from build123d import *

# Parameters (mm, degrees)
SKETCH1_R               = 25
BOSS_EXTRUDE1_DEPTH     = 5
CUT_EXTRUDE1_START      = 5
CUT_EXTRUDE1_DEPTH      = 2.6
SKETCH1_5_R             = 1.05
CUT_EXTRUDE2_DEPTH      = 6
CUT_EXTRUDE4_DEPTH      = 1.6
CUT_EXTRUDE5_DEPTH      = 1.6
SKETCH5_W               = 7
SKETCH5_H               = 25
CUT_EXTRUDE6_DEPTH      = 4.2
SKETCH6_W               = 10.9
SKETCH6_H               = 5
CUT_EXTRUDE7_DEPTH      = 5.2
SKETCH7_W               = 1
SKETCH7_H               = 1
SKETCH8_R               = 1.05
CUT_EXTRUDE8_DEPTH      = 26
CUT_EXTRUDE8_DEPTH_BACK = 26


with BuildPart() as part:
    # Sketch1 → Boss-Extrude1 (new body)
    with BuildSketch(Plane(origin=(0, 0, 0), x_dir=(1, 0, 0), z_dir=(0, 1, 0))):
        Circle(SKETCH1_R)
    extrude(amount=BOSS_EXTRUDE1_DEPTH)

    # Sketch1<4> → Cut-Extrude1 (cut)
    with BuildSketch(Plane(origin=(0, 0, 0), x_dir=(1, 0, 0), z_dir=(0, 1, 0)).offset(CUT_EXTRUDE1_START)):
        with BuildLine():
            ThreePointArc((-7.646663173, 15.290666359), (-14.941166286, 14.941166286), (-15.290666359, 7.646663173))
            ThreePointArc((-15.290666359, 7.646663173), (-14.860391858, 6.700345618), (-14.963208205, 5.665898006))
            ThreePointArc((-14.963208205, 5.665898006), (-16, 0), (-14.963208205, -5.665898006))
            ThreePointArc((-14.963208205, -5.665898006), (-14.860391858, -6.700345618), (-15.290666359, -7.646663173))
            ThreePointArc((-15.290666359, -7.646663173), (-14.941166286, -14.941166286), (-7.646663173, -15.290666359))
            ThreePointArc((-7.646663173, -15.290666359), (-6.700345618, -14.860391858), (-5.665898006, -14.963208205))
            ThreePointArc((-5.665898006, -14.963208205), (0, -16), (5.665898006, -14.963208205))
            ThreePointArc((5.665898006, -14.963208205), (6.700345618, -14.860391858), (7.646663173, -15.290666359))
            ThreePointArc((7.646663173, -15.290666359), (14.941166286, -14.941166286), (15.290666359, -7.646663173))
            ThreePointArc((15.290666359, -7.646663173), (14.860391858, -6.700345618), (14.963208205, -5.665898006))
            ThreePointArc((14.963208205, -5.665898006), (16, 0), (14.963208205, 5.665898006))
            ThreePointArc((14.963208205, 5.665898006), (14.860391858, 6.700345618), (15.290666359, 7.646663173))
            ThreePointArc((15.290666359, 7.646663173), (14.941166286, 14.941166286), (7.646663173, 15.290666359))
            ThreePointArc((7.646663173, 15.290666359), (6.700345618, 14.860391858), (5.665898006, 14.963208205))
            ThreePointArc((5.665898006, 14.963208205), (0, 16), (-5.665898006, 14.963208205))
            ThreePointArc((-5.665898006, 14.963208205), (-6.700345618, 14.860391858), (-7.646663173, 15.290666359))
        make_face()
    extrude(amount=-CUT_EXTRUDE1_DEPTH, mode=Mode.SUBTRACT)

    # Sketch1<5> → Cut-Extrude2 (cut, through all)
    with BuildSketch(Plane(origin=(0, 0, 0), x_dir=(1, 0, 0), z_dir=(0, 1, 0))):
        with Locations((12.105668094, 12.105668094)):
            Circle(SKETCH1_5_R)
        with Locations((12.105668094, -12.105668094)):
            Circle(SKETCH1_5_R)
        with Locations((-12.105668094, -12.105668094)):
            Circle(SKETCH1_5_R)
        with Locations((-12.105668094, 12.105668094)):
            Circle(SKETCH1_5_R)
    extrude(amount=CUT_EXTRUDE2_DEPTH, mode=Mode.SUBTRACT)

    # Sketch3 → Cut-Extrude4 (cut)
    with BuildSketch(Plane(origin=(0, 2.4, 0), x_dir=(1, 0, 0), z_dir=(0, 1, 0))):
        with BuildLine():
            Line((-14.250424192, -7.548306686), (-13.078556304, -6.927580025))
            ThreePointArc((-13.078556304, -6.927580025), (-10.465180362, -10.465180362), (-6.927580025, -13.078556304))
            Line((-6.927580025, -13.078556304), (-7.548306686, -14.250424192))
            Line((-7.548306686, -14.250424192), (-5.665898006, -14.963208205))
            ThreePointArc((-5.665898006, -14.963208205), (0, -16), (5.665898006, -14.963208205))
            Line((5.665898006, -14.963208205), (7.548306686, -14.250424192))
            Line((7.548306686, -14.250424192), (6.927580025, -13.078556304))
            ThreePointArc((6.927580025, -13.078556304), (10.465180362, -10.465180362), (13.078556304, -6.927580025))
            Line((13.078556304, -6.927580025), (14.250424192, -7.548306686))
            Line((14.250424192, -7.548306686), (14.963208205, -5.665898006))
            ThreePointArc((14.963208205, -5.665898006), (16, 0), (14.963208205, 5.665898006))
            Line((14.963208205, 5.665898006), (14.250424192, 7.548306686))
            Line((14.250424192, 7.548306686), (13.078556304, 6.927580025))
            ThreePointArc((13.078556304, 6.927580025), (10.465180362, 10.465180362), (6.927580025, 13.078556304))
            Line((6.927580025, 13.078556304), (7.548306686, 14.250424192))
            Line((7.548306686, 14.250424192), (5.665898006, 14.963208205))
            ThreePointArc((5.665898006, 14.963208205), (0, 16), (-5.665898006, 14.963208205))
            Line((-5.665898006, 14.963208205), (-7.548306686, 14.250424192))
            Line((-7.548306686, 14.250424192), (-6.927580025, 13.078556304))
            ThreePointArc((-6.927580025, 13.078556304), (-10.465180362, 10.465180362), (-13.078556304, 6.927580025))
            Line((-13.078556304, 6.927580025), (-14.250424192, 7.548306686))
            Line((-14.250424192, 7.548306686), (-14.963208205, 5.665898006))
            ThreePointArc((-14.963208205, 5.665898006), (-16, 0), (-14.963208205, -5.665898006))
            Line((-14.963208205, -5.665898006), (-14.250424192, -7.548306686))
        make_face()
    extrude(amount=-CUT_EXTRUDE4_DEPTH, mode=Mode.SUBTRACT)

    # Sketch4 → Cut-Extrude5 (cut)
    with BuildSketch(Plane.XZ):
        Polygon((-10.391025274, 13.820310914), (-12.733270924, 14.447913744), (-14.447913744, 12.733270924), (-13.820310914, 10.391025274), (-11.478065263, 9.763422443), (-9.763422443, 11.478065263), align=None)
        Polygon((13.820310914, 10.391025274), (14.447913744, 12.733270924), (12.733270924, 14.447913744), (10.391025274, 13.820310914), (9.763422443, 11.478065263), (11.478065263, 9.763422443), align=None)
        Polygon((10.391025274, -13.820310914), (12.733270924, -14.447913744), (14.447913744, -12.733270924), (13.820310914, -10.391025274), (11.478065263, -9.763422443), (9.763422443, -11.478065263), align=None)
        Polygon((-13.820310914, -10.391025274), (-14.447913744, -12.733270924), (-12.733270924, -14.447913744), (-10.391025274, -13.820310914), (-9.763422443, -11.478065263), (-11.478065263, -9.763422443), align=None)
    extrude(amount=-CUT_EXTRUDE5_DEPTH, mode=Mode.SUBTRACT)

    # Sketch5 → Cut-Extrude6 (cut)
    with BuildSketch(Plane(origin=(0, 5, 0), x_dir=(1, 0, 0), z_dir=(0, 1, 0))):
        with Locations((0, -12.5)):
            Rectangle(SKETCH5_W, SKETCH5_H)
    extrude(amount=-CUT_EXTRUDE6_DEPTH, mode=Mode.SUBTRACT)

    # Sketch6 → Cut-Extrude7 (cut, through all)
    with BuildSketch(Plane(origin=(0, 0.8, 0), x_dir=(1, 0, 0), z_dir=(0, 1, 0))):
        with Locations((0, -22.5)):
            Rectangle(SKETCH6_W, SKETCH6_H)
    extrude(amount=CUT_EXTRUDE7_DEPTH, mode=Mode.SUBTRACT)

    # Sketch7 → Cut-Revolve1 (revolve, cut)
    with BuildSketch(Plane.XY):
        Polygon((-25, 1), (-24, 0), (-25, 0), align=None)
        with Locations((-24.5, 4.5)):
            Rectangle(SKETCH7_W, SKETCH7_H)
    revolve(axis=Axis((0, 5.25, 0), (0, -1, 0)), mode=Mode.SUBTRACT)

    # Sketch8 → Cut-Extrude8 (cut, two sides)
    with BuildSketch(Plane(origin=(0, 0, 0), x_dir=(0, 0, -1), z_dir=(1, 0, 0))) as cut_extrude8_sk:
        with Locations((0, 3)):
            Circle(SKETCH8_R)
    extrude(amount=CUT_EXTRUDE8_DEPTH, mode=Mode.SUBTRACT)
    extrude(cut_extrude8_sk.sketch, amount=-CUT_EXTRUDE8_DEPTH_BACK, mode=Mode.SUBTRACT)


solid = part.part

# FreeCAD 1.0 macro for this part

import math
import FreeCAD as App
import Part
import Sketcher
Q = App.Units.Quantity


def add_polygon(sketch, points):
    """Adds a closed chain of lines whose ends are joined by coincident constraints."""
    first, n = sketch.GeometryCount, len(points)
    for a, b in zip(points, points[1:] + points[:1]):
        sketch.addGeometry(Part.LineSegment(App.Vector(*a, 0), App.Vector(*b, 0)), False)
    for i in range(n):
        sketch.addConstraint(Sketcher.Constraint("Coincident", first + i, 2, first + (i + 1) % n, 1))

doc = App.newDocument("Part")
params = doc.addObject("Spreadsheet::Sheet", "Params")
for row, (alias, value) in enumerate([
    ("sketch1_diameter", "50 mm"),
    ("pad1_length", "5 mm"),
    ("sketch2_radius", "2 mm"),
    ("sketch2_radius2", "16 mm"),
    ("sketch2_radius3", "5.43 mm"),
    ("pocket1_length", "2.6 mm"),
    ("sketch3_diameter", "2.1 mm"),
    ("sketch4_radius", "16 mm"),
    ("sketch4_radius2", "14.8 mm"),
    ("pocket3_length", "1.6 mm"),
    ("pocket4_length", "1.6 mm"),
    ("sketch6_width", "7 mm"),
    ("sketch6_height", "25 mm"),
    ("pocket5_length", "4.2 mm"),
    ("sketch7_height", "5 mm"),
    ("sketch7_width", "10.9 mm"),
    ("sketch8_width", "1 mm"),
    ("groove_angle", "360 deg"),
    ("sketch9_diameter", "2.1 mm"),
], start=1):
    params.set(f"A{row}", alias)
    params.set(f"B{row}", "=" + value)
    params.setAlias(f"B{row}", alias)

body = doc.addObject("PartDesign::Body", "Body")

# Sketch on XZ plane
sketch1 = doc.addObject("Sketcher::SketchObject", "Sketch")
body.addObject(sketch1)
sketch1.AttachmentSupport = (doc.XZ_Plane, [""])
sketch1.MapMode = "FlatFace"
sketch1.addGeometry(Part.Circle(App.Vector(0, 0, 0), App.Vector(0, 0, 1), 25), False)
sketch1.addConstraint(Sketcher.Constraint("Coincident", 0, 3, -1, 1))
sketch1.addConstraint(Sketcher.Constraint("Diameter", 0, Q("50 mm")))
sketch1.setExpression("Constraints[1]", "Params.sketch1_diameter")
pad1 = doc.addObject("PartDesign::Pad", "Pad")
body.addObject(pad1)
pad1.Profile = sketch1
pad1.setExpression("Length", "Params.pad1_length")
pad1.Reversed = True

# Sketch on XZ plane
sketch2 = doc.addObject("Sketcher::SketchObject", "Sketch001")
body.addObject(sketch2)
sketch2.AttachmentSupport = (doc.XZ_Plane, [""])
sketch2.MapMode = "FlatFace"
sketch2.AttachmentOffset = App.Placement(App.Vector(0, 0, -5), App.Rotation())
sketch2.addGeometry(Part.ArcOfCircle(Part.Circle(App.Vector(-11.1, -11.1, 0), App.Vector(0, 0, 1), 5.4), math.radians(140), math.radians(310)), False)
sketch2.addGeometry(Part.ArcOfCircle(Part.Circle(App.Vector(-16.8, -6.4, 0), App.Vector(0, 0, 1), 2), math.radians(-40), math.radians(21)), False)
sketch2.addGeometry(Part.ArcOfCircle(Part.Circle(App.Vector(0, 0, 0), App.Vector(0, 0, 1), 16), math.radians(159), math.radians(201)), False)
sketch2.addGeometry(Part.ArcOfCircle(Part.Circle(App.Vector(-16.8, 6.4, 0), App.Vector(0, 0, 1), 2), math.radians(-21), math.radians(40)), False)
sketch2.addGeometry(Part.ArcOfCircle(Part.Circle(App.Vector(-11.1, 11.1, 0), App.Vector(0, 0, 1), 5.4), math.radians(50), math.radians(220)), False)
sketch2.addGeometry(Part.ArcOfCircle(Part.Circle(App.Vector(-6.4, 16.8, 0), App.Vector(0, 0, 1), 2), math.radians(-130), math.radians(-69)), False)
sketch2.addGeometry(Part.ArcOfCircle(Part.Circle(App.Vector(0, 0, 0), App.Vector(0, 0, 1), 16), math.radians(69), math.radians(111)), False)
sketch2.addGeometry(Part.ArcOfCircle(Part.Circle(App.Vector(6.4, 16.8, 0), App.Vector(0, 0, 1), 2), math.radians(-111), math.radians(-50)), False)
sketch2.addGeometry(Part.ArcOfCircle(Part.Circle(App.Vector(11.1, 11.1, 0), App.Vector(0, 0, 1), 5.4), math.radians(-40), math.radians(130)), False)
sketch2.addGeometry(Part.ArcOfCircle(Part.Circle(App.Vector(16.8, 6.4, 0), App.Vector(0, 0, 1), 2), math.radians(140), math.radians(201)), False)
sketch2.addGeometry(Part.ArcOfCircle(Part.Circle(App.Vector(0, 0, 0), App.Vector(0, 0, 1), 16), math.radians(-21), math.radians(21)), False)
sketch2.addGeometry(Part.ArcOfCircle(Part.Circle(App.Vector(16.8, -6.4, 0), App.Vector(0, 0, 1), 2), math.radians(159), math.radians(220)), False)
sketch2.addGeometry(Part.ArcOfCircle(Part.Circle(App.Vector(11.1, -11.1, 0), App.Vector(0, 0, 1), 5.4), math.radians(-130), math.radians(40)), False)
sketch2.addGeometry(Part.ArcOfCircle(Part.Circle(App.Vector(6.4, -16.8, 0), App.Vector(0, 0, 1), 2), math.radians(50), math.radians(111)), False)
sketch2.addGeometry(Part.ArcOfCircle(Part.Circle(App.Vector(0, 0, 0), App.Vector(0, 0, 1), 16), math.radians(-111), math.radians(-69)), False)
sketch2.addGeometry(Part.ArcOfCircle(Part.Circle(App.Vector(-6.4, -16.8, 0), App.Vector(0, 0, 1), 2), math.radians(69), math.radians(130)), False)
sketch2.addConstraint(Sketcher.Constraint("Tangent", 0, 1, 1, 1))
sketch2.addConstraint(Sketcher.Constraint("Tangent", 1, 2, 2, 2))
sketch2.addConstraint(Sketcher.Constraint("Tangent", 2, 1, 3, 1))
sketch2.addConstraint(Sketcher.Constraint("Tangent", 3, 2, 4, 2))
sketch2.addConstraint(Sketcher.Constraint("Tangent", 4, 1, 5, 1))
sketch2.addConstraint(Sketcher.Constraint("Tangent", 5, 2, 6, 2))
sketch2.addConstraint(Sketcher.Constraint("Tangent", 6, 1, 7, 1))
sketch2.addConstraint(Sketcher.Constraint("Tangent", 7, 2, 8, 2))
sketch2.addConstraint(Sketcher.Constraint("Tangent", 8, 1, 9, 1))
sketch2.addConstraint(Sketcher.Constraint("Tangent", 9, 2, 10, 2))
sketch2.addConstraint(Sketcher.Constraint("Tangent", 10, 1, 11, 1))
sketch2.addConstraint(Sketcher.Constraint("Tangent", 11, 2, 12, 2))
sketch2.addConstraint(Sketcher.Constraint("Tangent", 12, 1, 13, 1))
sketch2.addConstraint(Sketcher.Constraint("Tangent", 13, 2, 14, 2))
sketch2.addConstraint(Sketcher.Constraint("Tangent", 14, 1, 15, 1))
sketch2.addConstraint(Sketcher.Constraint("Tangent", 15, 2, 0, 2))
sketch2.addConstraint(Sketcher.Constraint("Coincident", 2, 3, -1, 1))
sketch2.addConstraint(Sketcher.Constraint("Coincident", 6, 3, -1, 1))
sketch2.addConstraint(Sketcher.Constraint("Coincident", 10, 3, -1, 1))
sketch2.addConstraint(Sketcher.Constraint("Coincident", 14, 3, -1, 1))
sketch2.addConstraint(Sketcher.Constraint("Equal", 1, 3))
sketch2.addConstraint(Sketcher.Constraint("Equal", 0, 4))
sketch2.addConstraint(Sketcher.Constraint("Equal", 3, 5))
sketch2.addConstraint(Sketcher.Constraint("Equal", 2, 6))
sketch2.addConstraint(Sketcher.Constraint("Equal", 5, 7))
sketch2.addConstraint(Sketcher.Constraint("Equal", 4, 8))
sketch2.addConstraint(Sketcher.Constraint("Equal", 7, 9))
sketch2.addConstraint(Sketcher.Constraint("Equal", 6, 10))
sketch2.addConstraint(Sketcher.Constraint("Equal", 9, 11))
sketch2.addConstraint(Sketcher.Constraint("Equal", 8, 12))
sketch2.addConstraint(Sketcher.Constraint("Equal", 11, 13))
sketch2.addConstraint(Sketcher.Constraint("Equal", 10, 14))
sketch2.addConstraint(Sketcher.Constraint("Equal", 13, 15))
sketch2.addConstraint(Sketcher.Constraint("Symmetric", 0, 3, 8, 3, -1, 1))
sketch2.addConstraint(Sketcher.Constraint("Symmetric", 4, 3, 12, 3, -1, 1))
sketch2.addConstraint(Sketcher.Constraint("Symmetric", 4, 3, 8, 3, -2))
sketch2.addConstraint(Sketcher.Constraint("Radius", 1, Q("2 mm")))
sketch2.addConstraint(Sketcher.Constraint("Radius", 2, Q("16 mm")))
sketch2.addConstraint(Sketcher.Constraint("Radius", 0, Q("5.43 mm")))
sketch2.addConstraint(Sketcher.Constraint("DistanceY", 1, 2, -1, 1, Q("5.665898 mm")))
sketch2.addConstraint(Sketcher.Constraint("DistanceX", 5, 2, -1, 1, Q("5.665898 mm")))
sketch2.setExpression("Constraints[36]", "Params.sketch2_radius")
sketch2.setExpression("Constraints[37]", "Params.sketch2_radius2")
sketch2.setExpression("Constraints[38]", "Params.sketch2_radius3")
pocket1 = doc.addObject("PartDesign::Pocket", "Pocket")
body.addObject(pocket1)
pocket1.Profile = sketch2
pocket1.setExpression("Length", "Params.pocket1_length")
pocket1.Reversed = True

# Sketch on XZ plane
sketch3 = doc.addObject("Sketcher::SketchObject", "Sketch002")
body.addObject(sketch3)
sketch3.AttachmentSupport = (doc.XZ_Plane, [""])
sketch3.MapMode = "FlatFace"
sketch3.addGeometry(Part.Circle(App.Vector(12.1, -12.1, 0), App.Vector(0, 0, 1), 1.1), False)
sketch3.addGeometry(Part.Circle(App.Vector(12.1, 12.1, 0), App.Vector(0, 0, 1), 1.1), False)
sketch3.addGeometry(Part.Circle(App.Vector(-12.1, 12.1, 0), App.Vector(0, 0, 1), 1.1), False)
sketch3.addGeometry(Part.Circle(App.Vector(-12.1, -12.1, 0), App.Vector(0, 0, 1), 1.1), False)
sketch3.addConstraint(Sketcher.Constraint("Equal", 0, 1))
sketch3.addConstraint(Sketcher.Constraint("Equal", 1, 2))
sketch3.addConstraint(Sketcher.Constraint("Equal", 2, 3))
sketch3.addConstraint(Sketcher.Constraint("Symmetric", 0, 3, 2, 3, -1, 1))
sketch3.addConstraint(Sketcher.Constraint("Symmetric", 1, 3, 3, 3, -1, 1))
sketch3.addConstraint(Sketcher.Constraint("Symmetric", 1, 3, 2, 3, -2))
sketch3.addConstraint(Sketcher.Constraint("Diameter", 0, Q("2.1 mm")))
sketch3.addConstraint(Sketcher.Constraint("DistanceX", -1, 1, 0, 3, Q("12.105668 mm")))
sketch3.addConstraint(Sketcher.Constraint("DistanceY", 0, 3, -1, 1, Q("12.105668 mm")))
sketch3.setExpression("Constraints[6]", "Params.sketch3_diameter")
pocket2 = doc.addObject("PartDesign::Pocket", "Pocket001")
body.addObject(pocket2)
pocket2.Profile = sketch3
pocket2.Type = "ThroughAll"

# Sketch on XZ plane
sketch4 = doc.addObject("Sketcher::SketchObject", "Sketch003")
body.addObject(sketch4)
sketch4.AttachmentSupport = (doc.XZ_Plane, [""])
sketch4.MapMode = "FlatFace"
sketch4.AttachmentOffset = App.Placement(App.Vector(0, 0, -2.4), App.Rotation())
sketch4.addGeometry(Part.LineSegment(App.Vector(-14.3, 7.5, 0), App.Vector(-13.1, 6.9, 0)), False)
sketch4.addGeometry(Part.ArcOfCircle(Part.Circle(App.Vector(0, 0, 0), App.Vector(0, 0, 1), 14.8), math.radians(118), math.radians(152)), False)
sketch4.addGeometry(Part.LineSegment(App.Vector(-6.9, 13.1, 0), App.Vector(-7.5, 14.3, 0)), False)
sketch4.addGeometry(Part.LineSegment(App.Vector(-7.5, 14.3, 0), App.Vector(-5.7, 15, 0)), False)
sketch4.addGeometry(Part.ArcOfCircle(Part.Circle(App.Vector(0, 0, 0), App.Vector(0, 0, 1), 16), math.radians(69), math.radians(111)), False)
sketch4.addGeometry(Part.LineSegment(App.Vector(5.7, 15, 0), App.Vector(7.5, 14.3, 0)), False)
sketch4.addGeometry(Part.LineSegment(App.Vector(7.5, 14.3, 0), App.Vector(6.9, 13.1, 0)), False)
sketch4.addGeometry(Part.ArcOfCircle(Part.Circle(App.Vector(0, 0, 0), App.Vector(0, 0, 1), 14.8), math.radians(28), math.radians(62)), False)
sketch4.addGeometry(Part.LineSegment(App.Vector(13.1, 6.9, 0), App.Vector(14.3, 7.5, 0)), False)
sketch4.addGeometry(Part.LineSegment(App.Vector(14.3, 7.5, 0), App.Vector(15, 5.7, 0)), False)
sketch4.addGeometry(Part.ArcOfCircle(Part.Circle(App.Vector(0, 0, 0), App.Vector(0, 0, 1), 16), math.radians(-21), math.radians(21)), False)
sketch4.addGeometry(Part.LineSegment(App.Vector(15, -5.7, 0), App.Vector(14.3, -7.5, 0)), False)
sketch4.addGeometry(Part.LineSegment(App.Vector(14.3, -7.5, 0), App.Vector(13.1, -6.9, 0)), False)
sketch4.addGeometry(Part.ArcOfCircle(Part.Circle(App.Vector(0, 0, 0), App.Vector(0, 0, 1), 14.8), math.radians(-62), math.radians(-28)), False)
sketch4.addGeometry(Part.LineSegment(App.Vector(6.9, -13.1, 0), App.Vector(7.5, -14.3, 0)), False)
sketch4.addGeometry(Part.LineSegment(App.Vector(7.5, -14.3, 0), App.Vector(5.7, -15, 0)), False)
sketch4.addGeometry(Part.ArcOfCircle(Part.Circle(App.Vector(0, 0, 0), App.Vector(0, 0, 1), 16), math.radians(-111), math.radians(-69)), False)
sketch4.addGeometry(Part.LineSegment(App.Vector(-5.7, -15, 0), App.Vector(-7.5, -14.3, 0)), False)
sketch4.addGeometry(Part.LineSegment(App.Vector(-7.5, -14.3, 0), App.Vector(-6.9, -13.1, 0)), False)
sketch4.addGeometry(Part.ArcOfCircle(Part.Circle(App.Vector(0, 0, 0), App.Vector(0, 0, 1), 14.8), math.radians(-152), math.radians(-118)), False)
sketch4.addGeometry(Part.LineSegment(App.Vector(-13.1, -6.9, 0), App.Vector(-14.3, -7.5, 0)), False)
sketch4.addGeometry(Part.LineSegment(App.Vector(-14.3, -7.5, 0), App.Vector(-15, -5.7, 0)), False)
sketch4.addGeometry(Part.ArcOfCircle(Part.Circle(App.Vector(0, 0, 0), App.Vector(0, 0, 1), 16), math.radians(159), math.radians(201)), False)
sketch4.addGeometry(Part.LineSegment(App.Vector(-15, 5.7, 0), App.Vector(-14.3, 7.5, 0)), False)
sketch4.addConstraint(Sketcher.Constraint("Coincident", 0, 2, 1, 2))
sketch4.addConstraint(Sketcher.Constraint("Coincident", 1, 1, 2, 1))
sketch4.addConstraint(Sketcher.Constraint("Coincident", 2, 2, 3, 1))
sketch4.addConstraint(Sketcher.Constraint("Tangent", 3, 2, 4, 2))
sketch4.addConstraint(Sketcher.Constraint("Tangent", 4, 1, 5, 1))
sketch4.addConstraint(Sketcher.Constraint("Coincident", 5, 2, 6, 1))
sketch4.addConstraint(Sketcher.Constraint("Coincident", 6, 2, 7, 2))
sketch4.addConstraint(Sketcher.Constraint("Coincident", 7, 1, 8, 1))
sketch4.addConstraint(Sketcher.Constraint("Coincident", 8, 2, 9, 1))
sketch4.addConstraint(Sketcher.Constraint("Tangent", 9, 2, 10, 2))
sketch4.addConstraint(Sketcher.Constraint("Tangent", 10, 1, 11, 1))
sketch4.addConstraint(Sketcher.Constraint("Coincident", 11, 2, 12, 1))
sketch4.addConstraint(Sketcher.Constraint("Coincident", 12, 2, 13, 2))
sketch4.addConstraint(Sketcher.Constraint("Coincident", 13, 1, 14, 1))
sketch4.addConstraint(Sketcher.Constraint("Coincident", 14, 2, 15, 1))
sketch4.addConstraint(Sketcher.Constraint("Tangent", 15, 2, 16, 2))
sketch4.addConstraint(Sketcher.Constraint("Tangent", 16, 1, 17, 1))
sketch4.addConstraint(Sketcher.Constraint("Coincident", 17, 2, 18, 1))
sketch4.addConstraint(Sketcher.Constraint("Coincident", 18, 2, 19, 2))
sketch4.addConstraint(Sketcher.Constraint("Coincident", 19, 1, 20, 1))
sketch4.addConstraint(Sketcher.Constraint("Coincident", 20, 2, 21, 1))
sketch4.addConstraint(Sketcher.Constraint("Tangent", 21, 2, 22, 2))
sketch4.addConstraint(Sketcher.Constraint("Tangent", 22, 1, 23, 1))
sketch4.addConstraint(Sketcher.Constraint("Coincident", 23, 2, 0, 1))
sketch4.addConstraint(Sketcher.Constraint("Coincident", 1, 3, -1, 1))
sketch4.addConstraint(Sketcher.Constraint("Coincident", 4, 3, -1, 1))
sketch4.addConstraint(Sketcher.Constraint("Coincident", 7, 3, -1, 1))
sketch4.addConstraint(Sketcher.Constraint("Coincident", 10, 3, -1, 1))
sketch4.addConstraint(Sketcher.Constraint("Coincident", 13, 3, -1, 1))
sketch4.addConstraint(Sketcher.Constraint("Coincident", 16, 3, -1, 1))
sketch4.addConstraint(Sketcher.Constraint("Coincident", 19, 3, -1, 1))
sketch4.addConstraint(Sketcher.Constraint("Coincident", 22, 3, -1, 1))
sketch4.addConstraint(Sketcher.Constraint("Equal", 1, 7))
sketch4.addConstraint(Sketcher.Constraint("Equal", 4, 10))
sketch4.addConstraint(Sketcher.Constraint("Equal", 7, 13))
sketch4.addConstraint(Sketcher.Constraint("Equal", 10, 16))
sketch4.addConstraint(Sketcher.Constraint("Equal", 13, 19))
sketch4.addConstraint(Sketcher.Constraint("Equal", 16, 22))
sketch4.addConstraint(Sketcher.Constraint("Symmetric", 2, 2, 14, 2, -1, 1))
sketch4.addConstraint(Sketcher.Constraint("Symmetric", 5, 2, 17, 2, -1, 1))
sketch4.addConstraint(Sketcher.Constraint("Symmetric", 8, 2, 20, 2, -1, 1))
sketch4.addConstraint(Sketcher.Constraint("Symmetric", 11, 2, 23, 2, -1, 1))
sketch4.addConstraint(Sketcher.Constraint("Symmetric", 2, 2, 5, 2, -2))
sketch4.addConstraint(Sketcher.Constraint("Symmetric", 11, 2, 20, 2, -2))
sketch4.addConstraint(Sketcher.Constraint("Perpendicular", 0, 6))
sketch4.addConstraint(Sketcher.Constraint("Perpendicular", 2, 8))
sketch4.addConstraint(Sketcher.Constraint("Perpendicular", 3, 9))
sketch4.addConstraint(Sketcher.Constraint("Perpendicular", 6, 12))
sketch4.addConstraint(Sketcher.Constraint("Perpendicular", 8, 14))
sketch4.addConstraint(Sketcher.Constraint("Perpendicular", 12, 18))
sketch4.addConstraint(Sketcher.Constraint("Perpendicular", 14, 20))
sketch4.addConstraint(Sketcher.Constraint("Horizontal", 1, 1, 6, 2))
sketch4.addConstraint(Sketcher.Constraint("Equal", 0, 2))
sketch4.addConstraint(Sketcher.Constraint("Radius", 4, Q("16 mm")))
sketch4.addConstraint(Sketcher.Constraint("Radius", 1, Q("14.8 mm")))
sketch4.addConstraint(Sketcher.Constraint("DistanceX", 3, 2, -1, 1, Q("5.665898 mm")))
sketch4.addConstraint(Sketcher.Constraint("DistanceY", 8, 2, 4, 1, Q("7.414902 mm")))
sketch4.addConstraint(Sketcher.Constraint("DistanceY", -1, 1, 0, 2, Q("6.92758 mm")))
sketch4.setExpression("Constraints[53]", "Params.sketch4_radius")
sketch4.setExpression("Constraints[54]", "Params.sketch4_radius2")
pocket3 = doc.addObject("PartDesign::Pocket", "Pocket002")
body.addObject(pocket3)
pocket3.Profile = sketch4
pocket3.setExpression("Length", "Params.pocket3_length")
pocket3.Reversed = True

# Sketch on XZ plane
sketch5 = doc.addObject("Sketcher::SketchObject", "Sketch004")
body.addObject(sketch5)
sketch5.AttachmentSupport = (doc.XZ_Plane, [""])
sketch5.MapMode = "FlatFace"
add_polygon(sketch5, [(-10.4, 13.8), (-12.7, 14.4), (-14.4, 12.7), (-13.8, 10.4), (-11.5, 9.8), (-9.8, 11.5)])  # lines 0-5
add_polygon(sketch5, [(13.8, 10.4), (14.4, 12.7), (12.7, 14.4), (10.4, 13.8), (9.8, 11.5), (11.5, 9.8)])  # lines 6-11
add_polygon(sketch5, [(10.4, -13.8), (12.7, -14.4), (14.4, -12.7), (13.8, -10.4), (11.5, -9.8), (9.8, -11.5)])  # lines 12-17
add_polygon(sketch5, [(-13.8, -10.4), (-14.4, -12.7), (-12.7, -14.4), (-10.4, -13.8), (-9.8, -11.5), (-11.5, -9.8)])  # lines 18-23
sketch5.addConstraint(Sketcher.Constraint("Symmetric", 0, 2, 12, 2, -1, 1))
sketch5.addConstraint(Sketcher.Constraint("Symmetric", 1, 2, 13, 2, -1, 1))
sketch5.addConstraint(Sketcher.Constraint("Symmetric", 2, 2, 14, 2, -1, 1))
sketch5.addConstraint(Sketcher.Constraint("Symmetric", 3, 2, 15, 2, -1, 1))
sketch5.addConstraint(Sketcher.Constraint("Symmetric", 4, 2, 16, 2, -1, 1))
sketch5.addConstraint(Sketcher.Constraint("Symmetric", 5, 2, 17, 2, -1, 1))
sketch5.addConstraint(Sketcher.Constraint("Symmetric", 6, 2, 18, 2, -1, 1))
sketch5.addConstraint(Sketcher.Constraint("Symmetric", 7, 2, 19, 2, -1, 1))
sketch5.addConstraint(Sketcher.Constraint("Symmetric", 8, 2, 20, 2, -1, 1))
sketch5.addConstraint(Sketcher.Constraint("Symmetric", 9, 2, 21, 2, -1, 1))
sketch5.addConstraint(Sketcher.Constraint("Symmetric", 10, 2, 22, 2, -1, 1))
sketch5.addConstraint(Sketcher.Constraint("Symmetric", 11, 2, 23, 2, -1, 1))
sketch5.addConstraint(Sketcher.Constraint("Symmetric", 1, 2, 6, 2, -2))
sketch5.addConstraint(Sketcher.Constraint("Symmetric", 0, 2, 7, 2, -2))
sketch5.addConstraint(Sketcher.Constraint("Symmetric", 5, 2, 8, 2, -2))
sketch5.addConstraint(Sketcher.Constraint("Symmetric", 4, 2, 9, 2, -2))
sketch5.addConstraint(Sketcher.Constraint("Symmetric", 3, 2, 10, 2, -2))
sketch5.addConstraint(Sketcher.Constraint("Symmetric", 2, 2, 11, 2, -2))
sketch5.addConstraint(Sketcher.Constraint("Parallel", 0, 3))
sketch5.addConstraint(Sketcher.Constraint("Parallel", 1, 4))
sketch5.addConstraint(Sketcher.Constraint("Parallel", 2, 5))
sketch5.addConstraint(Sketcher.Constraint("Perpendicular", 3, 6))
sketch5.addConstraint(Sketcher.Constraint("Perpendicular", 4, 7))
sketch5.addConstraint(Sketcher.Constraint("Equal", 0, 1))
sketch5.addConstraint(Sketcher.Constraint("Equal", 1, 2))
sketch5.addConstraint(Sketcher.Constraint("Equal", 2, 3))
sketch5.addConstraint(Sketcher.Constraint("Angle", 0, Q("165 deg")))
sketch5.addConstraint(Sketcher.Constraint("Distance", 0, Q("2.424871 mm")))
sketch5.addConstraint(Sketcher.Constraint("DistanceX", 0, 2, -1, 1, Q("12.733271 mm")))
sketch5.addConstraint(Sketcher.Constraint("DistanceY", -1, 1, 1, 2, Q("12.733271 mm")))
pocket4 = doc.addObject("PartDesign::Pocket", "Pocket003")
body.addObject(pocket4)
pocket4.Profile = sketch5
pocket4.setExpression("Length", "Params.pocket4_length")

# Sketch on XZ plane
sketch6 = doc.addObject("Sketcher::SketchObject", "Sketch005")
body.addObject(sketch6)
sketch6.AttachmentSupport = (doc.XZ_Plane, [""])
sketch6.MapMode = "FlatFace"
sketch6.AttachmentOffset = App.Placement(App.Vector(0, 0, -5), App.Rotation())
add_polygon(sketch6, [(-4, 0), (-4, 25), (4, 25), (4, 0)])  # lines 0-3
sketch6.addConstraint(Sketcher.Constraint("Vertical", 0))
sketch6.addConstraint(Sketcher.Constraint("Horizontal", 1))
sketch6.addConstraint(Sketcher.Constraint("Vertical", 2))
sketch6.addConstraint(Sketcher.Constraint("Horizontal", 3))
sketch6.addConstraint(Sketcher.Constraint("Symmetric", 2, 2, 3, 2, -1, 1))
sketch6.addConstraint(Sketcher.Constraint("DistanceX", 1, 1, 1, 2, Q("7 mm")))
sketch6.addConstraint(Sketcher.Constraint("DistanceY", 0, 1, 0, 2, Q("25 mm")))
sketch6.setExpression("Constraints[9]", "Params.sketch6_width")
sketch6.setExpression("Constraints[10]", "Params.sketch6_height")
pocket5 = doc.addObject("PartDesign::Pocket", "Pocket004")
body.addObject(pocket5)
pocket5.Profile = sketch6
pocket5.setExpression("Length", "Params.pocket5_length")
pocket5.Reversed = True

# Sketch on XZ plane
sketch7 = doc.addObject("Sketcher::SketchObject", "Sketch006")
body.addObject(sketch7)
sketch7.AttachmentSupport = (doc.XZ_Plane, [""])
sketch7.MapMode = "FlatFace"
sketch7.AttachmentOffset = App.Placement(App.Vector(0, 0, -0.8), App.Rotation())
add_polygon(sketch7, [(-5, 20), (-5, 25), (5, 25), (5, 20)])  # lines 0-3
sketch7.addConstraint(Sketcher.Constraint("Vertical", 0))
sketch7.addConstraint(Sketcher.Constraint("Horizontal", 1))
sketch7.addConstraint(Sketcher.Constraint("Vertical", 2))
sketch7.addConstraint(Sketcher.Constraint("Horizontal", 3))
sketch7.addConstraint(Sketcher.Constraint("DistanceY", 0, 1, 0, 2, Q("5 mm")))
sketch7.addConstraint(Sketcher.Constraint("DistanceX", 1, 1, 1, 2, Q("10.9 mm")))
sketch7.addConstraint(Sketcher.Constraint("DistanceY", -1, 1, 0, 2, Q("25 mm")))
sketch7.addConstraint(Sketcher.Constraint("DistanceX", 0, 2, -1, 1, Q("5.45 mm")))
sketch7.setExpression("Constraints[8]", "Params.sketch7_height")
sketch7.setExpression("Constraints[9]", "Params.sketch7_width")
pocket6 = doc.addObject("PartDesign::Pocket", "Pocket005")
body.addObject(pocket6)
pocket6.Profile = sketch7
pocket6.Type = "ThroughAll"

# Sketch on XY plane
sketch8 = doc.addObject("Sketcher::SketchObject", "Sketch007")
body.addObject(sketch8)
sketch8.AttachmentSupport = (doc.XY_Plane, [""])
sketch8.MapMode = "FlatFace"
add_polygon(sketch8, [(-24, 0), (-25, 1), (-25, 0)])  # lines 0-2
add_polygon(sketch8, [(-25, 5), (-25, 4), (-24, 4), (-24, 5)])  # lines 3-6
sketch8.addConstraint(Sketcher.Constraint("Vertical", 1))
sketch8.addConstraint(Sketcher.Constraint("Horizontal", 2))
sketch8.addConstraint(Sketcher.Constraint("Vertical", 3))
sketch8.addConstraint(Sketcher.Constraint("Horizontal", 4))
sketch8.addConstraint(Sketcher.Constraint("Vertical", 5))
sketch8.addConstraint(Sketcher.Constraint("Horizontal", 6))
sketch8.addConstraint(Sketcher.Constraint("PointOnObject", 1, 2, -1))
sketch8.addConstraint(Sketcher.Constraint("Vertical", 1, 2, 3, 2))
sketch8.addConstraint(Sketcher.Constraint("Vertical", 2, 2, 4, 2))
sketch8.addConstraint(Sketcher.Constraint("Equal", 6, 1))
sketch8.addConstraint(Sketcher.Constraint("Equal", 1, 3))
sketch8.addConstraint(Sketcher.Constraint("DistanceX", 2, 1, 2, 2, Q("1 mm")))
sketch8.addConstraint(Sketcher.Constraint("DistanceX", 0, 2, -1, 1, Q("25 mm")))
sketch8.addConstraint(Sketcher.Constraint("DistanceY", -1, 1, 3, 2, Q("4 mm")))
sketch8.setExpression("Constraints[18]", "Params.sketch8_width")
groove = doc.addObject("PartDesign::Groove", "Groove")
body.addObject(groove)
groove.Profile = sketch8
groove.ReferenceAxis = (sketch8, ["V_Axis"])
groove.setExpression("Angle", "Params.groove_angle")

# Sketch on YZ plane
sketch9 = doc.addObject("Sketcher::SketchObject", "Sketch008")
body.addObject(sketch9)
sketch9.AttachmentSupport = (doc.YZ_Plane, [""])
sketch9.MapMode = "FlatFace"
sketch9.addGeometry(Part.Circle(App.Vector(3, 0, 0), App.Vector(0, 0, 1), 1.1), False)
sketch9.addConstraint(Sketcher.Constraint("PointOnObject", 0, 3, -1))
sketch9.addConstraint(Sketcher.Constraint("Diameter", 0, Q("2.1 mm")))
sketch9.addConstraint(Sketcher.Constraint("DistanceX", -1, 1, 0, 3, Q("3 mm")))
sketch9.setExpression("Constraints[1]", "Params.sketch9_diameter")
pocket7 = doc.addObject("PartDesign::Pocket", "Pocket006")
body.addObject(pocket7)
pocket7.Profile = sketch9
pocket7.Type = "ThroughAll"
pocket7.Midplane = True

doc.recompute()
